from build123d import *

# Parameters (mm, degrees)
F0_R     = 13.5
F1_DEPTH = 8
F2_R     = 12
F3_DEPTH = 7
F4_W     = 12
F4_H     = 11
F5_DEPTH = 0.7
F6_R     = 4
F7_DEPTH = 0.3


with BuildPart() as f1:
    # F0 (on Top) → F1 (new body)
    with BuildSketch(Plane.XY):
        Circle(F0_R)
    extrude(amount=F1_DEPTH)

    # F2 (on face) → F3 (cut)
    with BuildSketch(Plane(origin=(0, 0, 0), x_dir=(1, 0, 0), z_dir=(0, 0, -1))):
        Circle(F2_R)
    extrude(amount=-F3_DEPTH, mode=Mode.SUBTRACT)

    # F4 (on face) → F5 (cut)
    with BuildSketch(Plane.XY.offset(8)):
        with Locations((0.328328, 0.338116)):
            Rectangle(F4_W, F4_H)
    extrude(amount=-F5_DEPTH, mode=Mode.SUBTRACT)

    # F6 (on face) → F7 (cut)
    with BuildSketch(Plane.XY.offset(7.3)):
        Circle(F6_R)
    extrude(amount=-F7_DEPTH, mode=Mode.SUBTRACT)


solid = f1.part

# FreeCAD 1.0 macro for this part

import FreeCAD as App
import Part
import Sketcher

V = App.Vector


def add_polygon(sketch, points):
    """Adds a closed chain of lines whose ends are joined by coincident constraints."""
    first, n = sketch.GeometryCount, len(points)
    for a, b in zip(points, points[1:] + points[:1]):
        sketch.addGeometry(Part.LineSegment(App.Vector(*a, 0), App.Vector(*b, 0)), False)
    for i in range(n):
        sketch.addConstraint(Sketcher.Constraint("Coincident", first + i, 2, first + (i + 1) % n, 1))

doc = App.newDocument("Part")
body = doc.addObject("PartDesign::Body", "Body")

sketch1 = doc.addObject("Sketcher::SketchObject", "Sketch")
body.addObject(sketch1)
sketch1.AttachmentSupport = (doc.XY_Plane, [""])
sketch1.MapMode = "FlatFace"
sketch1.addGeometry(Part.Circle(V(0, 0, 0), V(0, 0, 1), 14), False)
sketch1.addConstraint(Sketcher.Constraint("Coincident", 0, 3, -1, 1))
sketch1.addConstraint(Sketcher.Constraint("Diameter", 0, 27.0))
pad1 = doc.addObject("PartDesign::Pad", "Pad")
body.addObject(pad1)
pad1.Profile = sketch1
pad1.Length = 8

sketch2 = doc.addObject("Sketcher::SketchObject", "Sketch001")
body.addObject(sketch2)
sketch2.AttachmentSupport = (doc.XY_Plane, [""])
sketch2.MapMode = "FlatFace"
sketch2.addGeometry(Part.Circle(V(0, 0, 0), V(0, 0, 1), 12), False)
sketch2.addConstraint(Sketcher.Constraint("Coincident", 0, 3, -1, 1))
sketch2.addConstraint(Sketcher.Constraint("Diameter", 0, 24.0))
pocket1 = doc.addObject("PartDesign::Pocket", "Pocket")
body.addObject(pocket1)
pocket1.Profile = sketch2
pocket1.Length = 7
pocket1.Reversed = True

sketch3 = doc.addObject("Sketcher::SketchObject", "Sketch002")
body.addObject(sketch3)
sketch3.AttachmentSupport = (doc.XY_Plane, [""])
sketch3.MapMode = "FlatFace"
sketch3.AttachmentOffset = App.Placement(V(0, 0, 8), App.Rotation())
add_polygon(sketch3, [(-6, 6), (-6, -5), (6, -5), (6, 6)])
sketch3.addConstraint(Sketcher.Constraint("Vertical", 0))
sketch3.addConstraint(Sketcher.Constraint("Horizontal", 1))
sketch3.addConstraint(Sketcher.Constraint("Vertical", 2))
sketch3.addConstraint(Sketcher.Constraint("Horizontal", 3))
sketch3.addConstraint(Sketcher.Constraint("DistanceX", 1, 1, 1, 2, 12.0))
sketch3.addConstraint(Sketcher.Constraint("DistanceY", 0, 2, 0, 1, 11.0))
sketch3.addConstraint(Sketcher.Constraint("DistanceX", 0, 2, -1, 1, 5.671672))
sketch3.addConstraint(Sketcher.Constraint("DistanceY", 0, 2, -1, 1, 5.161884))
pocket2 = doc.addObject("PartDesign::Pocket", "Pocket001")
body.addObject(pocket2)
pocket2.Profile = sketch3
pocket2.Length = 0.7

sketch4 = doc.addObject("Sketcher::SketchObject", "Sketch003")
body.addObject(sketch4)
sketch4.AttachmentSupport = (doc.XY_Plane, [""])
sketch4.MapMode = "FlatFace"
sketch4.AttachmentOffset = App.Placement(V(0, 0, 7.3), App.Rotation())
sketch4.addGeometry(Part.Circle(V(0, 0, 0), V(0, 0, 1), 4), False)
sketch4.addConstraint(Sketcher.Constraint("Coincident", 0, 3, -1, 1))
sketch4.addConstraint(Sketcher.Constraint("Diameter", 0, 8.0))
pocket3 = doc.addObject("PartDesign::Pocket", "Pocket002")
body.addObject(pocket3)
pocket3.Profile = sketch4
pocket3.Length = 0.3

doc.recompute()
